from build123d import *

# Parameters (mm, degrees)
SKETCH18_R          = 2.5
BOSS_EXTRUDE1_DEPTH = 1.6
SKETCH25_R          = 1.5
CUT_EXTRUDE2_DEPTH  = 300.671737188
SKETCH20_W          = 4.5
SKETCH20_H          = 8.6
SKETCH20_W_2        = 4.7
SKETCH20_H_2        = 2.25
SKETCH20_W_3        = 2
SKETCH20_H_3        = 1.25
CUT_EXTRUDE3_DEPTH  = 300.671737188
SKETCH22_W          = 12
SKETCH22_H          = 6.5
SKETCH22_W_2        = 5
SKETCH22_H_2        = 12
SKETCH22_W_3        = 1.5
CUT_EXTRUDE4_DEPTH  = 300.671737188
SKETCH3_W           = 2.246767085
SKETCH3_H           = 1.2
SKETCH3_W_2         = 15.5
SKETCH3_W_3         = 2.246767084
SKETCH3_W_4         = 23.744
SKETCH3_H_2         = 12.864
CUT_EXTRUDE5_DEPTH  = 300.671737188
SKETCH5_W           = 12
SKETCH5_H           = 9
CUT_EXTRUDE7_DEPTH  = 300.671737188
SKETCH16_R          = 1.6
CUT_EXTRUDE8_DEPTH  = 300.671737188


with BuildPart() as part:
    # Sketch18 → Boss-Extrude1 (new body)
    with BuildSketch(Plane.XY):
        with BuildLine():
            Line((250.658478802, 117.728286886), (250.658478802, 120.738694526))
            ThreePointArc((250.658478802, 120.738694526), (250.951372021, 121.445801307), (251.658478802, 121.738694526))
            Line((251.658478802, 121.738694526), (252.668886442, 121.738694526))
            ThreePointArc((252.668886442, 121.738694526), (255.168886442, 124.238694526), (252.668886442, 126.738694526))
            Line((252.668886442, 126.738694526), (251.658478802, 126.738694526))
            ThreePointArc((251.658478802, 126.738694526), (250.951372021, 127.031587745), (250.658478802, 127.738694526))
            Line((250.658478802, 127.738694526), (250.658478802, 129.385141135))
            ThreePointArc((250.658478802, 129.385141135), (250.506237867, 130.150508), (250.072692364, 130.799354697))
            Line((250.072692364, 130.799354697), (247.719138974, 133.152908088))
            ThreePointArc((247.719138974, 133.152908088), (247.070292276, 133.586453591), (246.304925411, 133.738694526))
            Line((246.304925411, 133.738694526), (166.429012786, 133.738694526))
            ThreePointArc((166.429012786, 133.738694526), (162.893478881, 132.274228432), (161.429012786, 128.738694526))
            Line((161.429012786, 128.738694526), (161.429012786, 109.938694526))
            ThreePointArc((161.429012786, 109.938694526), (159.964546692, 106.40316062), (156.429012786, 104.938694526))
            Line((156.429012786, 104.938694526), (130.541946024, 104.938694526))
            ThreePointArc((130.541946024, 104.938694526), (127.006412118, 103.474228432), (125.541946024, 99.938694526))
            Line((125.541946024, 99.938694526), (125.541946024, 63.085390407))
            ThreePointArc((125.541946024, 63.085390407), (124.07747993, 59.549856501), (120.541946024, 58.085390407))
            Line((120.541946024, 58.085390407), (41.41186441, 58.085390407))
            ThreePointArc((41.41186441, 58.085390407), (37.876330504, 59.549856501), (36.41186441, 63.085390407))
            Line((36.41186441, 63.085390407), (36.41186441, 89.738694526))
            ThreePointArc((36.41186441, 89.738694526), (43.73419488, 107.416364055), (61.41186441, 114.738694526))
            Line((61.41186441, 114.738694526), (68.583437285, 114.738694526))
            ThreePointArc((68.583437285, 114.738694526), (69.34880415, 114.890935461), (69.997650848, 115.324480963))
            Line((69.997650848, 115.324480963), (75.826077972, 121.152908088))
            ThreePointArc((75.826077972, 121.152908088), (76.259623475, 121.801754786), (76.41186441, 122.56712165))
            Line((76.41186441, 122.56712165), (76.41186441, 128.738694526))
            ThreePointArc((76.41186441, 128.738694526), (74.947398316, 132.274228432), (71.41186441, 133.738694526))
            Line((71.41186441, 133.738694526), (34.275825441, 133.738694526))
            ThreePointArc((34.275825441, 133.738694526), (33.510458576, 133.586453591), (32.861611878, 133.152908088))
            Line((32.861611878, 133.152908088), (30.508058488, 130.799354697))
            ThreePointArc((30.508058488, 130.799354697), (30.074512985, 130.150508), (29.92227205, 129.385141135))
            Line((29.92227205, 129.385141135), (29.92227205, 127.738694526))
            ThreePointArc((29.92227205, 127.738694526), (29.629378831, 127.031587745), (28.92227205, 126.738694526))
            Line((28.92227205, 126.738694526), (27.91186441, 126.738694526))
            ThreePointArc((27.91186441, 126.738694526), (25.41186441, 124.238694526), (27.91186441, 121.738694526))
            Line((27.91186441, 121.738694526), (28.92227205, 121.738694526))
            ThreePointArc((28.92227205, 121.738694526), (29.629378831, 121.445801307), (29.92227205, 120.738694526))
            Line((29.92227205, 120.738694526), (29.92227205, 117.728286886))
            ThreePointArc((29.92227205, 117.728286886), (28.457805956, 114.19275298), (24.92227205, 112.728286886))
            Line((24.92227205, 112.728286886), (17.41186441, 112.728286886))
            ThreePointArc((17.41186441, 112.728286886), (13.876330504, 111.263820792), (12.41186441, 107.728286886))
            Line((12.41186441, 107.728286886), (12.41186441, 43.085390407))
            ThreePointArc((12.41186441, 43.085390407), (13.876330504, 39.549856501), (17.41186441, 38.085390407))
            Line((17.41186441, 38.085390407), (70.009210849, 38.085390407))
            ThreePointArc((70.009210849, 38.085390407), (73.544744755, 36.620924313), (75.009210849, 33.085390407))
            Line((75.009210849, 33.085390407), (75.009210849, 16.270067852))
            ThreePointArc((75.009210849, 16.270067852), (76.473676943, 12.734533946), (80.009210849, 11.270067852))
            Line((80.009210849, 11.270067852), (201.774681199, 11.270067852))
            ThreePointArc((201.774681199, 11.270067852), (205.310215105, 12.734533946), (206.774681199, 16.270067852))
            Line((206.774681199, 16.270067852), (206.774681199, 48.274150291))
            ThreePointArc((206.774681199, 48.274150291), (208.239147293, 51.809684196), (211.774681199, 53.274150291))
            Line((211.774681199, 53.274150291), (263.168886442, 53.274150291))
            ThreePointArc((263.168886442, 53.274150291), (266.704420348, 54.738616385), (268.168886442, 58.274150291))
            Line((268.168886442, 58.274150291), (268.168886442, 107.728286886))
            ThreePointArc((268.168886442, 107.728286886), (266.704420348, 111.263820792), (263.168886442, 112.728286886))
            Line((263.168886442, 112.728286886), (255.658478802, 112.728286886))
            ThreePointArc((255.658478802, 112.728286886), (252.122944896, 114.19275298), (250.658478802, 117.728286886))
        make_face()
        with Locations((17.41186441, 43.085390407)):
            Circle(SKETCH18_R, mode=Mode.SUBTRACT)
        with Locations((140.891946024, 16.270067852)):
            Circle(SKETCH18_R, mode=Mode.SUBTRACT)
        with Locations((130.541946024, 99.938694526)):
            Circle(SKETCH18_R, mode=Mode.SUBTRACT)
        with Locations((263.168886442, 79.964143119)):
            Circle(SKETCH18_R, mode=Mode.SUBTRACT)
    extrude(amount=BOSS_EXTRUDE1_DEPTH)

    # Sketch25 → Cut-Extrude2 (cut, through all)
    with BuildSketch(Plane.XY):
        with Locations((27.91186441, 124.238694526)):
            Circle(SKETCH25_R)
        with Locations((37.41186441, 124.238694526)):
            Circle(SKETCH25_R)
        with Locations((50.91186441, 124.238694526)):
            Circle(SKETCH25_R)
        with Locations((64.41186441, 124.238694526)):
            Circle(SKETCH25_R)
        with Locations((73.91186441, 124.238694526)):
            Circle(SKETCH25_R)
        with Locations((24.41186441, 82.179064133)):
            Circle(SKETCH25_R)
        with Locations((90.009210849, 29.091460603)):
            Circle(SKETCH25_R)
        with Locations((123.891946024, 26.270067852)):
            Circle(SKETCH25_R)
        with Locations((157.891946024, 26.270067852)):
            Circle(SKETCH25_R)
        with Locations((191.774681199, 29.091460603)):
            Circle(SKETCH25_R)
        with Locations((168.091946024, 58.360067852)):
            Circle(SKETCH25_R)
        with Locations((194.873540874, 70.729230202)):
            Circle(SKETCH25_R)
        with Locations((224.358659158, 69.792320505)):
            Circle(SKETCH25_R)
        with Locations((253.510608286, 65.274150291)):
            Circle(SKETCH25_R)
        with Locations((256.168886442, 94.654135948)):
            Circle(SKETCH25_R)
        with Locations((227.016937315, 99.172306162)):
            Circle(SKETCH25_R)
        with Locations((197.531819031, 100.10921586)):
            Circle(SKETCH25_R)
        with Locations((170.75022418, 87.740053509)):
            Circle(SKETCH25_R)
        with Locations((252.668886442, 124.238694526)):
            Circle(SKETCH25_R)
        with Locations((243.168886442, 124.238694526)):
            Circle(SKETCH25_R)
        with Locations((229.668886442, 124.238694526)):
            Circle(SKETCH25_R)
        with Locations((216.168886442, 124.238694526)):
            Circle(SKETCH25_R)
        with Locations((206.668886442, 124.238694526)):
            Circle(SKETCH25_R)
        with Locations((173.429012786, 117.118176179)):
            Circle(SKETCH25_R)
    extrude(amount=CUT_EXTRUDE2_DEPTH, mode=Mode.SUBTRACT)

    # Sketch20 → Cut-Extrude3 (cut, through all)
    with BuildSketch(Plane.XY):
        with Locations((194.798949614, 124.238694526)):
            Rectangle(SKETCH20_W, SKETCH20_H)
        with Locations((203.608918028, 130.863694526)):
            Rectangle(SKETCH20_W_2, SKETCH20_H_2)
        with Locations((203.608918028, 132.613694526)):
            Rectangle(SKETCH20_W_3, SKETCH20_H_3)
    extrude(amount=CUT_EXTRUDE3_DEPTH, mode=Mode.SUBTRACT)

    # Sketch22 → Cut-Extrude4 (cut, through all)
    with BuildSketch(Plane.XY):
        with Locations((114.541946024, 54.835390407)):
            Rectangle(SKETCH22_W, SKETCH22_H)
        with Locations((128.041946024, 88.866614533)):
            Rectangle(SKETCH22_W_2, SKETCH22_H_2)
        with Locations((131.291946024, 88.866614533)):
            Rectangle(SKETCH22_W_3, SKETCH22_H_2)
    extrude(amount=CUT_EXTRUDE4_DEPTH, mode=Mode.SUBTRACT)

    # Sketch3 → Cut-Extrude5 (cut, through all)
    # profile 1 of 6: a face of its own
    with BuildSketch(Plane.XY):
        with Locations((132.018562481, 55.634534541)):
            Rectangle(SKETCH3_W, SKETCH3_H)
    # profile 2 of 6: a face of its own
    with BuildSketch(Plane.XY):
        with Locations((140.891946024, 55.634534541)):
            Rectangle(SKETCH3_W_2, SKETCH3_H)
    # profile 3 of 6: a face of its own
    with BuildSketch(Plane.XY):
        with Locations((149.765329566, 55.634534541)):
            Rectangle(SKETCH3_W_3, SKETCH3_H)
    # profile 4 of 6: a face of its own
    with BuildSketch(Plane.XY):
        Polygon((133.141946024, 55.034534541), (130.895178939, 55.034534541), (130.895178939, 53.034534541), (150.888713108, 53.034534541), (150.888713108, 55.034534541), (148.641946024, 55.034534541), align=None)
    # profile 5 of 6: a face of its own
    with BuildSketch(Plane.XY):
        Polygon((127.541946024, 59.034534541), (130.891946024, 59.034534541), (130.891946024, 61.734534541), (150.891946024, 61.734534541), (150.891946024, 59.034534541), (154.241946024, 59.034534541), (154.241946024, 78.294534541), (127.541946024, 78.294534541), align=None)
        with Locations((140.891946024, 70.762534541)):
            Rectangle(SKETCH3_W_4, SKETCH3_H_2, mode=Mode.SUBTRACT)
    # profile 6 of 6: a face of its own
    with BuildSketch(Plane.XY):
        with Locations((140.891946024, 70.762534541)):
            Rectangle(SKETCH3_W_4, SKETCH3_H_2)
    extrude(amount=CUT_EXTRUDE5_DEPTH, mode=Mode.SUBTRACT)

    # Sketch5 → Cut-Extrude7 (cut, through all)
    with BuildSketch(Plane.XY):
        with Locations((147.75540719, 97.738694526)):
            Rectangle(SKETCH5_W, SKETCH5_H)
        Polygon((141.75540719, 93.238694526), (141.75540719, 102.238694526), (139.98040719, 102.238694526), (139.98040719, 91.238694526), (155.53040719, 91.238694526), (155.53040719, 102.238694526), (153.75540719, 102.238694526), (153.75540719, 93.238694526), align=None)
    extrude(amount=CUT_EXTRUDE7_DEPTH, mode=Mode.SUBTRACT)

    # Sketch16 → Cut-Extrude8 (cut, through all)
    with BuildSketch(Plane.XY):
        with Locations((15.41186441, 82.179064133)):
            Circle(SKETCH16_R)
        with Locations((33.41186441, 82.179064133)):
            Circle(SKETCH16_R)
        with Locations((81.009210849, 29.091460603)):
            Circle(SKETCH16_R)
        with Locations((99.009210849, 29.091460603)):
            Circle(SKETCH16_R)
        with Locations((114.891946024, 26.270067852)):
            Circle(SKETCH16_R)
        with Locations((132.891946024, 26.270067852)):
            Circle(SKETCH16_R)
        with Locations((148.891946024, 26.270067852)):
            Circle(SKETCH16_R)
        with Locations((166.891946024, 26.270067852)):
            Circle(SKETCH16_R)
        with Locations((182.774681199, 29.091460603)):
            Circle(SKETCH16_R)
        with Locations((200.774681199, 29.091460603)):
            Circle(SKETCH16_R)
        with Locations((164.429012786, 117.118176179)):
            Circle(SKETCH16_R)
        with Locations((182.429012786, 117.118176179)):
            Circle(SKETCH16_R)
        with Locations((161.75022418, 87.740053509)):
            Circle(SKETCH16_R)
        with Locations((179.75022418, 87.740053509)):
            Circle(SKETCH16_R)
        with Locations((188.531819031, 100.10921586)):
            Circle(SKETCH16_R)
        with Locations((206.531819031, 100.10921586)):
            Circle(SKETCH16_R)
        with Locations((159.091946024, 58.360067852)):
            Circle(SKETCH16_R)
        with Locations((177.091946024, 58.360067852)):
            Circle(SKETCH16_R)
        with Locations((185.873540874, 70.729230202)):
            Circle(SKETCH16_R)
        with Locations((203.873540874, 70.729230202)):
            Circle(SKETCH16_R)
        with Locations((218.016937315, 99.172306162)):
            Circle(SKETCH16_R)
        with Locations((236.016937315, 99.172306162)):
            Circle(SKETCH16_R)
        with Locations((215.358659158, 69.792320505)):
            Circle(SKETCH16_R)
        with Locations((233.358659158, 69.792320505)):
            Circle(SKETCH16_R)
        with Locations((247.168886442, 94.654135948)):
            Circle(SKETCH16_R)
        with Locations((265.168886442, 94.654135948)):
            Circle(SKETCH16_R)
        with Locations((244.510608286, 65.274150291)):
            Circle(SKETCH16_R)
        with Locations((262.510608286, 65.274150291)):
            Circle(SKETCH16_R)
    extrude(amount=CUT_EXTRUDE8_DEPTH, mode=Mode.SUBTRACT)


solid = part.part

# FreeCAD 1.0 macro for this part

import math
import FreeCAD as App
import Part
import Sketcher
Q = App.Units.Quantity


def add_polygon(sketch, points):
    """Adds a closed chain of lines whose ends are joined by coincident constraints."""
    first, n = sketch.GeometryCount, len(points)
    for a, b in zip(points, points[1:] + points[:1]):
        sketch.addGeometry(Part.LineSegment(App.Vector(*a, 0), App.Vector(*b, 0)), False)
    for i in range(n):
        sketch.addConstraint(Sketcher.Constraint("Coincident", first + i, 2, first + (i + 1) % n, 1))

doc = App.newDocument("Part")
params = doc.addObject("Spreadsheet::Sheet", "Params")
for row, (alias, value) in enumerate([
    ("sketch1_diameter", "5 mm"),
    ("sketch1_radius", "1 mm"),
    ("sketch1_radius2", "2 mm"),
    ("sketch1_radius3", "5 mm"),
    ("sketch1_radius4", "25 mm"),
    ("pad1_length", "1.6 mm"),
    ("sketch2_diameter", "3 mm"),
    ("sketch3_width", "2 mm"),
    ("sketch3_width2", "4.5 mm"),
    ("sketch3_width3", "4.7 mm"),
    ("sketch3_height", "8.6 mm"),
    ("sketch3_height2", "2.25 mm"),
    ("sketch4_width", "12 mm"),
    ("sketch4_width2", "6.5 mm"),
    ("sketch5_width", "20 mm"),
    ("sketch5_width2", "26.7 mm"),
    ("sketch5_height", "3.2 mm"),
    ("sketch5_height2", "2.7 mm"),
    ("sketch5_height3", "19.26 mm"),
    ("pocket4_length", "300.671737 mm"),
    ("sketch6_height", "11 mm"),
    ("sketch6_width", "15.55 mm"),
    ("sketch7_diameter", "3.2 mm"),
], start=1):
    params.set(f"A{row}", alias)
    params.set(f"B{row}", "=" + value)
    params.setAlias(f"B{row}", alias)

body = doc.addObject("PartDesign::Body", "Body")

# Sketch on XY plane
sketch1 = body.newObject("Sketcher::SketchObject", "Sketch")
sketch1.AttachmentSupport = (doc.getObject("XY_Plane"), [""])
sketch1.MapMode = "FlatFace"
sketch1.addGeometry([
    Part.LineSegment(App.Vector(250.658479, 117.728287, 0), App.Vector(250.658479, 120.738695, 0)),  # 0
    Part.ArcOfCircle(Part.Circle(App.Vector(251.658479, 120.738695, 0), App.Vector(0, 0, 1), 1), math.radians(90), math.radians(180)),  # 1
    Part.LineSegment(App.Vector(251.658479, 121.738695, 0), App.Vector(252.668886, 121.738695, 0)),  # 2
    Part.ArcOfCircle(Part.Circle(App.Vector(252.668886, 124.238695, 0), App.Vector(0, 0, 1), 2.5), math.radians(-90), math.radians(90)),  # 3
    Part.LineSegment(App.Vector(252.668886, 126.738695, 0), App.Vector(251.658479, 126.738695, 0)),  # 4
    Part.ArcOfCircle(Part.Circle(App.Vector(251.658479, 127.738695, 0), App.Vector(0, 0, 1), 1), math.radians(-180), math.radians(-90)),  # 5
    Part.LineSegment(App.Vector(250.658479, 127.738695, 0), App.Vector(250.658479, 129.385141, 0)),  # 6
    Part.ArcOfCircle(Part.Circle(App.Vector(248.658479, 129.385141, 0), App.Vector(0, 0, 1), 2), math.radians(0), math.radians(45)),  # 7
    Part.LineSegment(App.Vector(250.072692, 130.799355, 0), App.Vector(247.719139, 133.152908, 0)),  # 8
    Part.ArcOfCircle(Part.Circle(App.Vector(246.304925, 131.738695, 0), App.Vector(0, 0, 1), 2), math.radians(45), math.radians(90)),  # 9
    Part.LineSegment(App.Vector(246.304925, 133.738695, 0), App.Vector(166.429013, 133.738695, 0)),  # 10
    Part.ArcOfCircle(Part.Circle(App.Vector(166.429013, 128.738695, 0), App.Vector(0, 0, 1), 5), math.radians(90), math.radians(180)),  # 11
    Part.LineSegment(App.Vector(161.429013, 128.738695, 0), App.Vector(161.429013, 109.938695, 0)),  # 12
    Part.ArcOfCircle(Part.Circle(App.Vector(156.429013, 109.938695, 0), App.Vector(0, 0, 1), 5), math.radians(-90), math.radians(0)),  # 13
    Part.LineSegment(App.Vector(156.429013, 104.938695, 0), App.Vector(130.541946, 104.938695, 0)),  # 14
    Part.ArcOfCircle(Part.Circle(App.Vector(130.541946, 99.938695, 0), App.Vector(0, 0, 1), 5), math.radians(90), math.radians(180)),  # 15
    Part.LineSegment(App.Vector(125.541946, 99.938695, 0), App.Vector(125.541946, 63.08539, 0)),  # 16
    Part.ArcOfCircle(Part.Circle(App.Vector(120.541946, 63.08539, 0), App.Vector(0, 0, 1), 5), math.radians(-90), math.radians(0)),  # 17
    Part.LineSegment(App.Vector(120.541946, 58.08539, 0), App.Vector(41.411864, 58.08539, 0)),  # 18
    Part.ArcOfCircle(Part.Circle(App.Vector(41.411864, 63.08539, 0), App.Vector(0, 0, 1), 5), math.radians(180), math.radians(270)),  # 19
    Part.LineSegment(App.Vector(36.411864, 63.08539, 0), App.Vector(36.411864, 89.738695, 0)),  # 20
    Part.ArcOfCircle(Part.Circle(App.Vector(61.411864, 89.738695, 0), App.Vector(0, 0, 1), 25), math.radians(90), math.radians(180)),  # 21
    Part.LineSegment(App.Vector(61.411864, 114.738695, 0), App.Vector(68.583437, 114.738695, 0)),  # 22
    Part.ArcOfCircle(Part.Circle(App.Vector(68.583437, 116.738695, 0), App.Vector(0, 0, 1), 2), math.radians(-90), math.radians(-45)),  # 23
    Part.LineSegment(App.Vector(69.997651, 115.324481, 0), App.Vector(75.826078, 121.152908, 0)),  # 24
    Part.ArcOfCircle(Part.Circle(App.Vector(74.411864, 122.567122, 0), App.Vector(0, 0, 1), 2), math.radians(-45), math.radians(0)),  # 25
    Part.LineSegment(App.Vector(76.411864, 122.567122, 0), App.Vector(76.411864, 128.738695, 0)),  # 26
    Part.ArcOfCircle(Part.Circle(App.Vector(71.411864, 128.738695, 0), App.Vector(0, 0, 1), 5), math.radians(0), math.radians(90)),  # 27
    Part.LineSegment(App.Vector(71.411864, 133.738695, 0), App.Vector(34.275825, 133.738695, 0)),  # 28
    Part.ArcOfCircle(Part.Circle(App.Vector(34.275825, 131.738695, 0), App.Vector(0, 0, 1), 2), math.radians(90), math.radians(135)),  # 29
    Part.LineSegment(App.Vector(32.861612, 133.152908, 0), App.Vector(30.508058, 130.799355, 0)),  # 30
    Part.ArcOfCircle(Part.Circle(App.Vector(31.922272, 129.385141, 0), App.Vector(0, 0, 1), 2), math.radians(135), math.radians(180)),  # 31
    Part.LineSegment(App.Vector(29.922272, 129.385141, 0), App.Vector(29.922272, 127.738695, 0)),  # 32
    Part.ArcOfCircle(Part.Circle(App.Vector(28.922272, 127.738695, 0), App.Vector(0, 0, 1), 1), math.radians(-90), math.radians(0)),  # 33
    Part.LineSegment(App.Vector(28.922272, 126.738695, 0), App.Vector(27.911864, 126.738695, 0)),  # 34
    Part.ArcOfCircle(Part.Circle(App.Vector(27.911864, 124.238695, 0), App.Vector(0, 0, 1), 2.5), math.radians(90), math.radians(270)),  # 35
    Part.LineSegment(App.Vector(27.911864, 121.738695, 0), App.Vector(28.922272, 121.738695, 0)),  # 36
    Part.ArcOfCircle(Part.Circle(App.Vector(28.922272, 120.738695, 0), App.Vector(0, 0, 1), 1), math.radians(0), math.radians(90)),  # 37
    Part.LineSegment(App.Vector(29.922272, 120.738695, 0), App.Vector(29.922272, 117.728287, 0)),  # 38
    Part.ArcOfCircle(Part.Circle(App.Vector(24.922272, 117.728287, 0), App.Vector(0, 0, 1), 5), math.radians(-90), math.radians(0)),  # 39
    Part.LineSegment(App.Vector(24.922272, 112.728287, 0), App.Vector(17.411864, 112.728287, 0)),  # 40
    Part.ArcOfCircle(Part.Circle(App.Vector(17.411864, 107.728287, 0), App.Vector(0, 0, 1), 5), math.radians(90), math.radians(180)),  # 41
    Part.LineSegment(App.Vector(12.411864, 107.728287, 0), App.Vector(12.411864, 43.08539, 0)),  # 42
    Part.ArcOfCircle(Part.Circle(App.Vector(17.411864, 43.08539, 0), App.Vector(0, 0, 1), 5), math.radians(180), math.radians(270)),  # 43
    Part.LineSegment(App.Vector(17.411864, 38.08539, 0), App.Vector(70.009211, 38.08539, 0)),  # 44
    Part.ArcOfCircle(Part.Circle(App.Vector(70.009211, 33.08539, 0), App.Vector(0, 0, 1), 5), math.radians(0), math.radians(90)),  # 45
    Part.LineSegment(App.Vector(75.009211, 33.08539, 0), App.Vector(75.009211, 16.270068, 0)),  # 46
    Part.ArcOfCircle(Part.Circle(App.Vector(80.009211, 16.270068, 0), App.Vector(0, 0, 1), 5), math.radians(180), math.radians(270)),  # 47
    Part.LineSegment(App.Vector(80.009211, 11.270068, 0), App.Vector(201.774681, 11.270068, 0)),  # 48
    Part.ArcOfCircle(Part.Circle(App.Vector(201.774681, 16.270068, 0), App.Vector(0, 0, 1), 5), math.radians(-90), math.radians(0)),  # 49
    Part.LineSegment(App.Vector(206.774681, 16.270068, 0), App.Vector(206.774681, 48.27415, 0)),  # 50
    Part.ArcOfCircle(Part.Circle(App.Vector(211.774681, 48.27415, 0), App.Vector(0, 0, 1), 5), math.radians(90), math.radians(180)),  # 51
    Part.LineSegment(App.Vector(211.774681, 53.27415, 0), App.Vector(263.168886, 53.27415, 0)),  # 52
    Part.ArcOfCircle(Part.Circle(App.Vector(263.168886, 58.27415, 0), App.Vector(0, 0, 1), 5), math.radians(-90), math.radians(0)),  # 53
    Part.LineSegment(App.Vector(268.168886, 58.27415, 0), App.Vector(268.168886, 107.728287, 0)),  # 54
    Part.ArcOfCircle(Part.Circle(App.Vector(263.168886, 107.728287, 0), App.Vector(0, 0, 1), 5), math.radians(0), math.radians(90)),  # 55
    Part.LineSegment(App.Vector(263.168886, 112.728287, 0), App.Vector(255.658479, 112.728287, 0)),  # 56
    Part.ArcOfCircle(Part.Circle(App.Vector(255.658479, 117.728287, 0), App.Vector(0, 0, 1), 5), math.radians(180), math.radians(270)),  # 57
    Part.Circle(App.Vector(17.411864, 43.08539, 0), App.Vector(0, 0, 1), 2.5),  # 58
    Part.Circle(App.Vector(140.891946, 16.270068, 0), App.Vector(0, 0, 1), 2.5),  # 59
    Part.Circle(App.Vector(130.541946, 99.938695, 0), App.Vector(0, 0, 1), 2.5),  # 60
    Part.Circle(App.Vector(263.168886, 79.964143, 0), App.Vector(0, 0, 1), 2.5),  # 61
], False)
sketch1.addConstraint([
    Sketcher.Constraint("Tangent", 0, 2, 1, 2),
    Sketcher.Constraint("Tangent", 1, 1, 2, 1),
    Sketcher.Constraint("Tangent", 2, 2, 3, 1),
    Sketcher.Constraint("Tangent", 3, 2, 4, 1),
    Sketcher.Constraint("Tangent", 4, 2, 5, 2),
    Sketcher.Constraint("Tangent", 5, 1, 6, 1),
    Sketcher.Constraint("Tangent", 6, 2, 7, 1),
    Sketcher.Constraint("Tangent", 7, 2, 8, 1),
    Sketcher.Constraint("Tangent", 8, 2, 9, 1),
    Sketcher.Constraint("Tangent", 9, 2, 10, 1),
    Sketcher.Constraint("Tangent", 10, 2, 11, 1),
    Sketcher.Constraint("Tangent", 11, 2, 12, 1),
    Sketcher.Constraint("Tangent", 12, 2, 13, 2),
    Sketcher.Constraint("Tangent", 13, 1, 14, 1),
    Sketcher.Constraint("Tangent", 14, 2, 15, 1),
    Sketcher.Constraint("Tangent", 15, 2, 16, 1),
    Sketcher.Constraint("Tangent", 16, 2, 17, 2),
    Sketcher.Constraint("Tangent", 17, 1, 18, 1),
    Sketcher.Constraint("Tangent", 18, 2, 19, 2),
    Sketcher.Constraint("Tangent", 19, 1, 20, 1),
    Sketcher.Constraint("Tangent", 20, 2, 21, 2),
    Sketcher.Constraint("Tangent", 21, 1, 22, 1),
    Sketcher.Constraint("Tangent", 22, 2, 23, 1),
    Sketcher.Constraint("Tangent", 23, 2, 24, 1),
    Sketcher.Constraint("Tangent", 24, 2, 25, 1),
    Sketcher.Constraint("Tangent", 25, 2, 26, 1),
    Sketcher.Constraint("Tangent", 26, 2, 27, 1),
    Sketcher.Constraint("Tangent", 27, 2, 28, 1),
    Sketcher.Constraint("Tangent", 28, 2, 29, 1),
    Sketcher.Constraint("Tangent", 29, 2, 30, 1),
    Sketcher.Constraint("Tangent", 30, 2, 31, 1),
    Sketcher.Constraint("Tangent", 31, 2, 32, 1),
    Sketcher.Constraint("Tangent", 32, 2, 33, 2),
    Sketcher.Constraint("Tangent", 33, 1, 34, 1),
    Sketcher.Constraint("Tangent", 34, 2, 35, 1),
    Sketcher.Constraint("Tangent", 35, 2, 36, 1),
    Sketcher.Constraint("Tangent", 36, 2, 37, 2),
    Sketcher.Constraint("Tangent", 37, 1, 38, 1),
    Sketcher.Constraint("Tangent", 38, 2, 39, 2),
    Sketcher.Constraint("Tangent", 39, 1, 40, 1),
    Sketcher.Constraint("Tangent", 40, 2, 41, 1),
    Sketcher.Constraint("Tangent", 41, 2, 42, 1),
    Sketcher.Constraint("Tangent", 42, 2, 43, 1),
    Sketcher.Constraint("Tangent", 43, 2, 44, 1),
    Sketcher.Constraint("Tangent", 44, 2, 45, 2),
    Sketcher.Constraint("Tangent", 45, 1, 46, 1),
    Sketcher.Constraint("Tangent", 46, 2, 47, 1),
    Sketcher.Constraint("Tangent", 47, 2, 48, 1),
    Sketcher.Constraint("Tangent", 48, 2, 49, 1),
    Sketcher.Constraint("Tangent", 49, 2, 50, 1),
    Sketcher.Constraint("Tangent", 50, 2, 51, 2),
    Sketcher.Constraint("Tangent", 51, 1, 52, 1),
    Sketcher.Constraint("Tangent", 52, 2, 53, 1),
    Sketcher.Constraint("Tangent", 53, 2, 54, 1),
    Sketcher.Constraint("Tangent", 54, 2, 55, 1),
    Sketcher.Constraint("Tangent", 55, 2, 56, 1),
    Sketcher.Constraint("Tangent", 56, 2, 57, 2),
    Sketcher.Constraint("Tangent", 57, 1, 0, 1),
    Sketcher.Constraint("Vertical", 0),
    Sketcher.Constraint("Horizontal", 2),
    Sketcher.Constraint("Horizontal", 4),
    Sketcher.Constraint("Vertical", 6),
    Sketcher.Constraint("Horizontal", 10),
    Sketcher.Constraint("Vertical", 12),
    Sketcher.Constraint("Horizontal", 14),
    Sketcher.Constraint("Vertical", 16),
    Sketcher.Constraint("Horizontal", 18),
    Sketcher.Constraint("Vertical", 20),
    Sketcher.Constraint("Horizontal", 22),
    Sketcher.Constraint("Vertical", 26),
    Sketcher.Constraint("Horizontal", 28),
    Sketcher.Constraint("Vertical", 32),
    Sketcher.Constraint("Horizontal", 34),
    Sketcher.Constraint("Horizontal", 36),
    Sketcher.Constraint("Vertical", 38),
    Sketcher.Constraint("Horizontal", 40),
    Sketcher.Constraint("Vertical", 42),
    Sketcher.Constraint("Horizontal", 44),
    Sketcher.Constraint("Vertical", 46),
    Sketcher.Constraint("Horizontal", 48),
    Sketcher.Constraint("Vertical", 50),
    Sketcher.Constraint("Horizontal", 52),
    Sketcher.Constraint("Vertical", 54),
    Sketcher.Constraint("Horizontal", 56),
    Sketcher.Constraint("Coincident", 58, 3, 43, 3),
    Sketcher.Constraint("Coincident", 60, 3, 15, 3),
    Sketcher.Constraint("Equal", 1, 5),
    Sketcher.Constraint("Equal", 7, 9),
    Sketcher.Constraint("Equal", 11, 13),
    Sketcher.Constraint("Equal", 13, 15),
    Sketcher.Constraint("Equal", 15, 17),
    Sketcher.Constraint("Equal", 17, 19),
    Sketcher.Constraint("Equal", 9, 23),
    Sketcher.Constraint("Equal", 23, 25),
    Sketcher.Constraint("Equal", 19, 27),
    Sketcher.Constraint("Equal", 25, 29),
    Sketcher.Constraint("Equal", 29, 31),
    Sketcher.Constraint("Equal", 5, 33),
    Sketcher.Constraint("Equal", 3, 35),
    Sketcher.Constraint("Equal", 33, 37),
    Sketcher.Constraint("Equal", 27, 39),
    Sketcher.Constraint("Equal", 39, 41),
    Sketcher.Constraint("Equal", 41, 43),
    Sketcher.Constraint("Equal", 43, 45),
    Sketcher.Constraint("Equal", 45, 47),
    Sketcher.Constraint("Equal", 47, 49),
    Sketcher.Constraint("Equal", 49, 51),
    Sketcher.Constraint("Equal", 51, 53),
    Sketcher.Constraint("Equal", 53, 55),
    Sketcher.Constraint("Equal", 55, 57),
    Sketcher.Constraint("Equal", 35, 58),
    Sketcher.Constraint("Equal", 58, 59),
    Sketcher.Constraint("Equal", 59, 60),
    Sketcher.Constraint("Equal", 60, 61),
    Sketcher.Constraint("Perpendicular", 8, 24),
    Sketcher.Constraint("Parallel", 24, 30),
    Sketcher.Constraint("Horizontal", 11, 3, 27, 3),
    Sketcher.Constraint("Horizontal", 7, 3, 31, 3),
    Sketcher.Constraint("Horizontal", 5, 3, 33, 3),
    Sketcher.Constraint("Horizontal", 41, 3, 55, 3),
    Sketcher.Constraint("Horizontal", 49, 3, 59, 3),
    Sketcher.Constraint("Horizontal", 8, 2, 29, 2),
    Sketcher.Constraint("Vertical", 1, 3, 5, 3),
    Sketcher.Constraint("Vertical", 33, 3, 37, 3),
    Sketcher.Constraint("Vertical", 55, 3, 61, 3),
    Sketcher.Constraint("Equal", 4, 34),
    Sketcher.Constraint("Equal", 40, 56),
    Sketcher.Constraint("Diameter", 58, Q("5 mm")),
    Sketcher.Constraint("Radius", 1, Q("1 mm")),
    Sketcher.Constraint("Radius", 7, Q("2 mm")),
    Sketcher.Constraint("Radius", 11, Q("5 mm")),
    Sketcher.Constraint("Radius", 21, Q("25 mm")),
    Sketcher.Constraint("DistanceY", 12, 2, 12, 1, Q("18.8 mm")),
    Sketcher.Constraint("DistanceX", 18, 2, 18, 1, Q("79.130082 mm")),
    Sketcher.Constraint("DistanceX", 28, 2, 28, 1, Q("37.136039 mm")),
    Sketcher.Constraint("DistanceX", 48, 1, 48, 2, Q("121.76547 mm")),
    Sketcher.Constraint("Distance", 24, Q("8.242641 mm")),
    Sketcher.Constraint("DistanceX", 2, 1, 2, 2, Q("1.010408 mm")),
    Sketcher.Constraint("DistanceX", 10, 2, 10, 1, Q("79.875913 mm")),
    Sketcher.Constraint("DistanceX", 14, 2, 14, 1, Q("25.887067 mm")),
    Sketcher.Constraint("DistanceX", 22, 1, 22, 2, Q("7.171573 mm")),
    Sketcher.Constraint("DistanceX", 40, 2, 40, 1, Q("7.510408 mm")),
    Sketcher.Constraint("DistanceX", 44, 1, 44, 2, Q("52.597346 mm")),
    Sketcher.Constraint("DistanceX", 52, 1, 52, 2, Q("51.394205 mm")),
    Sketcher.Constraint("DistanceY", 0, 1, 0, 2, Q("3.010408 mm")),
    Sketcher.Constraint("DistanceY", 6, 1, 6, 2, Q("1.646447 mm")),
    Sketcher.Constraint("DistanceY", 16, 2, 16, 1, Q("36.853304 mm")),
    Sketcher.Constraint("DistanceY", 20, 1, 20, 2, Q("26.653304 mm")),
    Sketcher.Constraint("DistanceY", 42, 2, 42, 1, Q("64.642896 mm")),
    Sketcher.Constraint("DistanceY", 46, 2, 46, 1, Q("16.815323 mm")),
    Sketcher.Constraint("DistanceY", 50, 1, 50, 2, Q("32.004082 mm")),
    Sketcher.Constraint("DistanceX", -1, 1, 1, 3, Q("251.658479 mm")),
    Sketcher.Constraint("DistanceY", -1, 1, 7, 3, Q("129.385141 mm")),
    Sketcher.Constraint("DistanceX", -1, 1, 59, 3, Q("140.891946 mm")),
    Sketcher.Constraint("DistanceY", -1, 1, 61, 3, Q("79.964143 mm")),
])
sketch1.setExpression("Constraints[127]", "Params.sketch1_diameter")
sketch1.setExpression("Constraints[128]", "Params.sketch1_radius")
sketch1.setExpression("Constraints[129]", "Params.sketch1_radius2")
sketch1.setExpression("Constraints[130]", "Params.sketch1_radius3")
sketch1.setExpression("Constraints[131]", "Params.sketch1_radius4")
pad1 = body.newObject("PartDesign::Pad", "Pad")
pad1.Profile = sketch1
pad1.setExpression("Length", "Params.pad1_length")

# Sketch on XY plane
sketch2 = body.newObject("Sketcher::SketchObject", "Sketch001")
sketch2.AttachmentSupport = (doc.getObject("XY_Plane"), [""])
sketch2.MapMode = "FlatFace"
sketch2.addGeometry([
    Part.Circle(App.Vector(27.911864, 124.238695, 0), App.Vector(0, 0, 1), 1.5),  # 0
    Part.Circle(App.Vector(37.411864, 124.238695, 0), App.Vector(0, 0, 1), 1.5),  # 1
    Part.Circle(App.Vector(50.911864, 124.238695, 0), App.Vector(0, 0, 1), 1.5),  # 2
    Part.Circle(App.Vector(64.411864, 124.238695, 0), App.Vector(0, 0, 1), 1.5),  # 3
    Part.Circle(App.Vector(73.911864, 124.238695, 0), App.Vector(0, 0, 1), 1.5),  # 4
    Part.Circle(App.Vector(24.411864, 82.179064, 0), App.Vector(0, 0, 1), 1.5),  # 5
    Part.Circle(App.Vector(90.009211, 29.091461, 0), App.Vector(0, 0, 1), 1.5),  # 6
    Part.Circle(App.Vector(123.891946, 26.270068, 0), App.Vector(0, 0, 1), 1.5),  # 7
    Part.Circle(App.Vector(157.891946, 26.270068, 0), App.Vector(0, 0, 1), 1.5),  # 8
    Part.Circle(App.Vector(191.774681, 29.091461, 0), App.Vector(0, 0, 1), 1.5),  # 9
    Part.Circle(App.Vector(168.091946, 58.360068, 0), App.Vector(0, 0, 1), 1.5),  # 10
    Part.Circle(App.Vector(194.873541, 70.72923, 0), App.Vector(0, 0, 1), 1.5),  # 11
    Part.Circle(App.Vector(224.358659, 69.792321, 0), App.Vector(0, 0, 1), 1.5),  # 12
    Part.Circle(App.Vector(253.510608, 65.27415, 0), App.Vector(0, 0, 1), 1.5),  # 13
    Part.Circle(App.Vector(256.168886, 94.654136, 0), App.Vector(0, 0, 1), 1.5),  # 14
    Part.Circle(App.Vector(227.016937, 99.172306, 0), App.Vector(0, 0, 1), 1.5),  # 15
    Part.Circle(App.Vector(197.531819, 100.109216, 0), App.Vector(0, 0, 1), 1.5),  # 16
    Part.Circle(App.Vector(170.750224, 87.740054, 0), App.Vector(0, 0, 1), 1.5),  # 17
    Part.Circle(App.Vector(252.668886, 124.238695, 0), App.Vector(0, 0, 1), 1.5),  # 18
    Part.Circle(App.Vector(243.168886, 124.238695, 0), App.Vector(0, 0, 1), 1.5),  # 19
    Part.Circle(App.Vector(229.668886, 124.238695, 0), App.Vector(0, 0, 1), 1.5),  # 20
    Part.Circle(App.Vector(216.168886, 124.238695, 0), App.Vector(0, 0, 1), 1.5),  # 21
    Part.Circle(App.Vector(206.668886, 124.238695, 0), App.Vector(0, 0, 1), 1.5),  # 22
    Part.Circle(App.Vector(173.429013, 117.118176, 0), App.Vector(0, 0, 1), 1.5),  # 23
], False)
sketch2.addConstraint([
    Sketcher.Constraint("Equal", 0, 1),
    Sketcher.Constraint("Equal", 1, 2),
    Sketcher.Constraint("Equal", 2, 3),
    Sketcher.Constraint("Equal", 3, 4),
    Sketcher.Constraint("Equal", 4, 5),
    Sketcher.Constraint("Equal", 5, 6),
    Sketcher.Constraint("Equal", 6, 7),
    Sketcher.Constraint("Equal", 7, 8),
    Sketcher.Constraint("Equal", 8, 9),
    Sketcher.Constraint("Equal", 9, 10),
    Sketcher.Constraint("Equal", 10, 11),
    Sketcher.Constraint("Equal", 11, 12),
    Sketcher.Constraint("Equal", 12, 13),
    Sketcher.Constraint("Equal", 13, 14),
    Sketcher.Constraint("Equal", 14, 15),
    Sketcher.Constraint("Equal", 15, 16),
    Sketcher.Constraint("Equal", 16, 17),
    Sketcher.Constraint("Equal", 17, 18),
    Sketcher.Constraint("Equal", 18, 19),
    Sketcher.Constraint("Equal", 19, 20),
    Sketcher.Constraint("Equal", 20, 21),
    Sketcher.Constraint("Equal", 21, 22),
    Sketcher.Constraint("Equal", 22, 23),
    Sketcher.Constraint("Horizontal", 0, 3, 1, 3),
    Sketcher.Constraint("Horizontal", 1, 3, 2, 3),
    Sketcher.Constraint("Horizontal", 2, 3, 3, 3),
    Sketcher.Constraint("Horizontal", 3, 3, 4, 3),
    Sketcher.Constraint("Horizontal", 7, 3, 8, 3),
    Sketcher.Constraint("Horizontal", 6, 3, 9, 3),
    Sketcher.Constraint("Horizontal", 4, 3, 18, 3),
    Sketcher.Constraint("Horizontal", 18, 3, 19, 3),
    Sketcher.Constraint("Horizontal", 19, 3, 20, 3),
    Sketcher.Constraint("Horizontal", 20, 3, 21, 3),
    Sketcher.Constraint("Horizontal", 21, 3, 22, 3),
    Sketcher.Constraint("Diameter", 0, Q("3 mm")),
    Sketcher.Constraint("DistanceX", 0, 3, 2, 3, Q("23 mm")),
    Sketcher.Constraint("DistanceX", 1, 3, 3, 3, Q("27 mm")),
    Sketcher.Constraint("DistanceX", 2, 3, 4, 3, Q("23 mm")),
    Sketcher.Constraint("DistanceX", 5, 3, 1, 3, Q("13 mm")),
    Sketcher.Constraint("DistanceX", 7, 3, 8, 3, Q("34 mm")),
    Sketcher.Constraint("DistanceX", 19, 3, 14, 3, Q("13 mm")),
    Sketcher.Constraint("DistanceX", 20, 3, 18, 3, Q("23 mm")),
    Sketcher.Constraint("DistanceX", 21, 3, 19, 3, Q("27 mm")),
    Sketcher.Constraint("DistanceX", 22, 3, 20, 3, Q("23 mm")),
    Sketcher.Constraint("DistanceX", 0, 3, 1, 3, Q("9.5 mm")),
    Sketcher.Constraint("DistanceX", 8, 3, 10, 3, Q("10.2 mm")),
    Sketcher.Constraint("DistanceX", 18, 3, 14, 3, Q("3.5 mm")),
    Sketcher.Constraint("DistanceY", 8, 3, 10, 3, Q("32.09 mm")),
    Sketcher.Constraint("DistanceX", -1, 1, 6, 3, Q("90.009211 mm")),
    Sketcher.Constraint("DistanceY", -1, 1, 6, 3, Q("29.091461 mm")),
    Sketcher.Constraint("DistanceX", -1, 1, 9, 3, Q("191.774681 mm")),
    Sketcher.Constraint("DistanceX", -1, 1, 11, 3, Q("194.873541 mm")),
    Sketcher.Constraint("DistanceY", -1, 1, 11, 3, Q("70.72923 mm")),
    Sketcher.Constraint("DistanceX", -1, 1, 12, 3, Q("224.358659 mm")),
    Sketcher.Constraint("DistanceY", -1, 1, 12, 3, Q("69.792321 mm")),
    Sketcher.Constraint("DistanceX", -1, 1, 13, 3, Q("253.510608 mm")),
    Sketcher.Constraint("DistanceY", -1, 1, 13, 3, Q("65.27415 mm")),
    Sketcher.Constraint("DistanceX", -1, 1, 16, 3, Q("197.531819 mm")),
    Sketcher.Constraint("DistanceY", 5, 3, 0, 3, Q("42.05963 mm")),
    Sketcher.Constraint("DistanceX", 4, 3, 7, 3, Q("49.980082 mm")),
    Sketcher.Constraint("DistanceX", 13, 3, 14, 3, Q("2.658278 mm")),
    Sketcher.Constraint("DistanceX", 10, 3, 14, 3, Q("88.07694 mm")),
    Sketcher.Constraint("DistanceY", 10, 3, 14, 3, Q("36.294068 mm")),
    Sketcher.Constraint("DistanceX", 12, 3, 15, 3, Q("2.658278 mm")),
    Sketcher.Constraint("DistanceY", 14, 3, 15, 3, Q("4.51817 mm")),
    Sketcher.Constraint("DistanceY", 15, 3, 16, 3, Q("0.93691 mm")),
    Sketcher.Constraint("DistanceX", 10, 3, 17, 3, Q("2.658278 mm")),
    Sketcher.Constraint("DistanceY", 14, 3, 18, 3, Q("29.584559 mm")),
    Sketcher.Constraint("DistanceX", 17, 3, 23, 3, Q("2.678789 mm")),
    Sketcher.Constraint("DistanceY", 16, 3, 23, 3, Q("17.00896 mm")),
    Sketcher.Constraint("DistanceY", -1, 1, 0, 3, Q("124.238695 mm")),
    Sketcher.Constraint("DistanceY", -1, 1, 17, 3, Q("87.740054 mm")),
])
sketch2.setExpression("Constraints[34]", "Params.sketch2_diameter")
pocket1 = body.newObject("PartDesign::Pocket", "Pocket")
pocket1.Profile = sketch2
pocket1.Type = "ThroughAll"
pocket1.Reversed = True

# Sketch on XY plane
sketch3 = body.newObject("Sketcher::SketchObject", "Sketch002")
sketch3.AttachmentSupport = (doc.getObject("XY_Plane"), [""])
sketch3.MapMode = "FlatFace"
add_polygon(sketch3, [(192.54895, 128.538695), (192.54895, 119.938695), (197.04895, 119.938695), (197.04895, 128.538695)])  # lines 0-3
add_polygon(sketch3, [(201.258918, 131.988695), (201.258918, 129.738695), (205.958918, 129.738695), (205.958918, 131.988695), (204.608918, 131.988695), (204.608918, 133.238695), (202.608918, 133.238695), (202.608918, 131.988695)])  # lines 4-11
sketch3.addConstraint([
    Sketcher.Constraint("Vertical", 0),
    Sketcher.Constraint("Horizontal", 1),
    Sketcher.Constraint("Vertical", 2),
    Sketcher.Constraint("Horizontal", 3),
    Sketcher.Constraint("Vertical", 4),
    Sketcher.Constraint("Horizontal", 5),
    Sketcher.Constraint("Vertical", 6),
    Sketcher.Constraint("Horizontal", 7),
    Sketcher.Constraint("Vertical", 8),
    Sketcher.Constraint("Horizontal", 9),
    Sketcher.Constraint("Vertical", 10),
    Sketcher.Constraint("Horizontal", 11),
    Sketcher.Constraint("Horizontal", 7, 2, 10, 2),
    Sketcher.Constraint("Equal", 7, 11),
    Sketcher.Constraint("DistanceX", 9, 2, 9, 1, Q("2 mm")),
    Sketcher.Constraint("DistanceX", 1, 1, 1, 2, Q("4.5 mm")),
    Sketcher.Constraint("DistanceX", 5, 1, 5, 2, Q("4.7 mm")),
    Sketcher.Constraint("DistanceY", 0, 2, 0, 1, Q("8.6 mm")),
    Sketcher.Constraint("DistanceY", 4, 2, 4, 1, Q("2.25 mm")),
    Sketcher.Constraint("DistanceY", 8, 1, 8, 2, Q("1.25 mm")),
    Sketcher.Constraint("DistanceY", 2, 2, 4, 2, Q("1.2 mm")),
    Sketcher.Constraint("DistanceX", -1, 1, 0, 2, Q("192.54895 mm")),
    Sketcher.Constraint("DistanceX", -1, 1, 4, 2, Q("201.258918 mm")),
    Sketcher.Constraint("DistanceY", -1, 1, 0, 2, Q("119.938695 mm")),
])
sketch3.setExpression("Constraints[26]", "Params.sketch3_width")
sketch3.setExpression("Constraints[27]", "Params.sketch3_width2")
sketch3.setExpression("Constraints[28]", "Params.sketch3_width3")
sketch3.setExpression("Constraints[29]", "Params.sketch3_height")
sketch3.setExpression("Constraints[30]", "Params.sketch3_height2")
pocket2 = body.newObject("PartDesign::Pocket", "Pocket001")
pocket2.Profile = sketch3
pocket2.Type = "ThroughAll"
pocket2.Reversed = True

# Sketch on XY plane
sketch4 = body.newObject("Sketcher::SketchObject", "Sketch003")
sketch4.AttachmentSupport = (doc.getObject("XY_Plane"), [""])
sketch4.MapMode = "FlatFace"
add_polygon(sketch4, [(108.541946, 58.08539), (108.541946, 51.58539), (120.541946, 51.58539), (120.541946, 58.08539)])  # lines 0-3
add_polygon(sketch4, [(125.541946, 94.866615), (125.541946, 82.866615), (132.041946, 82.866615), (132.041946, 94.866615)])  # lines 4-7
sketch4.addConstraint([
    Sketcher.Constraint("Vertical", 0),
    Sketcher.Constraint("Horizontal", 1),
    Sketcher.Constraint("Vertical", 2),
    Sketcher.Constraint("Horizontal", 3),
    Sketcher.Constraint("Vertical", 4),
    Sketcher.Constraint("Horizontal", 5),
    Sketcher.Constraint("Vertical", 6),
    Sketcher.Constraint("Horizontal", 7),
    Sketcher.Constraint("Equal", 7, 0),
    Sketcher.Constraint("Equal", 3, 4),
    Sketcher.Constraint("DistanceX", 1, 1, 1, 2, Q("12 mm")),
    Sketcher.Constraint("DistanceX", 5, 1, 5, 2, Q("6.5 mm")),
    Sketcher.Constraint("DistanceX", 2, 2, 4, 2, Q("5 mm")),
    Sketcher.Constraint("DistanceY", -1, 1, 0, 2, Q("51.58539 mm")),
    Sketcher.Constraint("DistanceX", -1, 1, 0, 2, Q("108.541946 mm")),
    Sketcher.Constraint("DistanceY", -1, 1, 4, 2, Q("82.866615 mm")),
])
sketch4.setExpression("Constraints[18]", "Params.sketch4_width")
sketch4.setExpression("Constraints[19]", "Params.sketch4_width2")
pocket3 = body.newObject("PartDesign::Pocket", "Pocket002")
pocket3.Profile = sketch4
pocket3.Type = "ThroughAll"
pocket3.Reversed = True

# Sketch on XY plane
sketch5 = body.newObject("Sketcher::SketchObject", "Sketch004")
sketch5.AttachmentSupport = (doc.getObject("XY_Plane"), [""])
sketch5.MapMode = "FlatFace"
add_polygon(sketch5, [(130.895179, 56.234535), (130.895179, 53.034535), (150.888713, 53.034535), (150.888713, 56.234535)])  # lines 0-3
add_polygon(sketch5, [(127.541946, 59.034535), (130.891946, 59.034535), (130.891946, 61.734535), (150.891946, 61.734535), (150.891946, 59.034535), (154.241946, 59.034535), (154.241946, 78.294535), (127.541946, 78.294535)])  # lines 4-11
sketch5.addConstraint([
    Sketcher.Constraint("Vertical", 0),
    Sketcher.Constraint("Horizontal", 1),
    Sketcher.Constraint("Vertical", 2),
    Sketcher.Constraint("Horizontal", 3),
    Sketcher.Constraint("Horizontal", 4),
    Sketcher.Constraint("Vertical", 5),
    Sketcher.Constraint("Horizontal", 6),
    Sketcher.Constraint("Vertical", 7),
    Sketcher.Constraint("Horizontal", 8),
    Sketcher.Constraint("Vertical", 9),
    Sketcher.Constraint("Horizontal", 10),
    Sketcher.Constraint("Vertical", 11),
    Sketcher.Constraint("Horizontal", 4, 2, 7, 2),
    Sketcher.Constraint("Equal", 4, 8),
    Sketcher.Constraint("DistanceX", 6, 1, 6, 2, Q("20 mm")),
    Sketcher.Constraint("DistanceX", 10, 2, 10, 1, Q("26.7 mm")),
    Sketcher.Constraint("DistanceY", 0, 2, 0, 1, Q("3.2 mm")),
    Sketcher.Constraint("DistanceY", 5, 1, 5, 2, Q("2.7 mm")),
    Sketcher.Constraint("DistanceY", 0, 2, 4, 2, Q("6 mm")),
    Sketcher.Constraint("DistanceY", 9, 1, 9, 2, Q("19.26 mm")),
    Sketcher.Constraint("DistanceX", 1, 1, 1, 2, Q("19.993534 mm")),
    Sketcher.Constraint("DistanceX", -1, 1, 0, 2, Q("130.895179 mm")),
    Sketcher.Constraint("DistanceY", -1, 1, 0, 2, Q("53.034535 mm")),
    Sketcher.Constraint("DistanceX", -1, 1, 4, 2, Q("130.891946 mm")),
])
sketch5.setExpression("Constraints[26]", "Params.sketch5_width")
sketch5.setExpression("Constraints[27]", "Params.sketch5_width2")
sketch5.setExpression("Constraints[28]", "Params.sketch5_height")
sketch5.setExpression("Constraints[29]", "Params.sketch5_height2")
sketch5.setExpression("Constraints[31]", "Params.sketch5_height3")
pocket4 = body.newObject("PartDesign::Pocket", "Pocket003")
pocket4.Profile = sketch5
pocket4.setExpression("Length", "Params.pocket4_length")
pocket4.Reversed = True

# Sketch on XY plane
sketch6 = body.newObject("Sketcher::SketchObject", "Sketch005")
sketch6.AttachmentSupport = (doc.getObject("XY_Plane"), [""])
sketch6.MapMode = "FlatFace"
add_polygon(sketch6, [(139.980407, 102.238695), (139.980407, 91.238695), (155.530407, 91.238695), (155.530407, 102.238695)])  # lines 0-3
sketch6.addConstraint([
    Sketcher.Constraint("Vertical", 0),
    Sketcher.Constraint("Horizontal", 1),
    Sketcher.Constraint("Vertical", 2),
    Sketcher.Constraint("Horizontal", 3),
    Sketcher.Constraint("DistanceY", 0, 2, 0, 1, Q("11 mm")),
    Sketcher.Constraint("DistanceX", 1, 1, 1, 2, Q("15.55 mm")),
    Sketcher.Constraint("DistanceX", -1, 1, 0, 2, Q("139.980407 mm")),
    Sketcher.Constraint("DistanceY", -1, 1, 0, 2, Q("91.238695 mm")),
])
sketch6.setExpression("Constraints[8]", "Params.sketch6_height")
sketch6.setExpression("Constraints[9]", "Params.sketch6_width")
pocket5 = body.newObject("PartDesign::Pocket", "Pocket004")
pocket5.Profile = sketch6
pocket5.Type = "ThroughAll"
pocket5.Reversed = True

# Sketch on XY plane
sketch7 = body.newObject("Sketcher::SketchObject", "Sketch006")
sketch7.AttachmentSupport = (doc.getObject("XY_Plane"), [""])
sketch7.MapMode = "FlatFace"
sketch7.addGeometry([
    Part.Circle(App.Vector(15.411864, 82.179064, 0), App.Vector(0, 0, 1), 1.6),  # 0
    Part.Circle(App.Vector(33.411864, 82.179064, 0), App.Vector(0, 0, 1), 1.6),  # 1
    Part.Circle(App.Vector(81.009211, 29.091461, 0), App.Vector(0, 0, 1), 1.6),  # 2
    Part.Circle(App.Vector(99.009211, 29.091461, 0), App.Vector(0, 0, 1), 1.6),  # 3
    Part.Circle(App.Vector(114.891946, 26.270068, 0), App.Vector(0, 0, 1), 1.6),  # 4
    Part.Circle(App.Vector(132.891946, 26.270068, 0), App.Vector(0, 0, 1), 1.6),  # 5
    Part.Circle(App.Vector(148.891946, 26.270068, 0), App.Vector(0, 0, 1), 1.6),  # 6
    Part.Circle(App.Vector(166.891946, 26.270068, 0), App.Vector(0, 0, 1), 1.6),  # 7
    Part.Circle(App.Vector(182.774681, 29.091461, 0), App.Vector(0, 0, 1), 1.6),  # 8
    Part.Circle(App.Vector(200.774681, 29.091461, 0), App.Vector(0, 0, 1), 1.6),  # 9
    Part.Circle(App.Vector(164.429013, 117.118176, 0), App.Vector(0, 0, 1), 1.6),  # 10
    Part.Circle(App.Vector(182.429013, 117.118176, 0), App.Vector(0, 0, 1), 1.6),  # 11
    Part.Circle(App.Vector(161.750224, 87.740054, 0), App.Vector(0, 0, 1), 1.6),  # 12
    Part.Circle(App.Vector(179.750224, 87.740054, 0), App.Vector(0, 0, 1), 1.6),  # 13
    Part.Circle(App.Vector(188.531819, 100.109216, 0), App.Vector(0, 0, 1), 1.6),  # 14
    Part.Circle(App.Vector(206.531819, 100.109216, 0), App.Vector(0, 0, 1), 1.6),  # 15
    Part.Circle(App.Vector(159.091946, 58.360068, 0), App.Vector(0, 0, 1), 1.6),  # 16
    Part.Circle(App.Vector(177.091946, 58.360068, 0), App.Vector(0, 0, 1), 1.6),  # 17
    Part.Circle(App.Vector(185.873541, 70.72923, 0), App.Vector(0, 0, 1), 1.6),  # 18
    Part.Circle(App.Vector(203.873541, 70.72923, 0), App.Vector(0, 0, 1), 1.6),  # 19
    Part.Circle(App.Vector(218.016937, 99.172306, 0), App.Vector(0, 0, 1), 1.6),  # 20
    Part.Circle(App.Vector(236.016937, 99.172306, 0), App.Vector(0, 0, 1), 1.6),  # 21
    Part.Circle(App.Vector(215.358659, 69.792321, 0), App.Vector(0, 0, 1), 1.6),  # 22
    Part.Circle(App.Vector(233.358659, 69.792321, 0), App.Vector(0, 0, 1), 1.6),  # 23
    Part.Circle(App.Vector(247.168886, 94.654136, 0), App.Vector(0, 0, 1), 1.6),  # 24
    Part.Circle(App.Vector(265.168886, 94.654136, 0), App.Vector(0, 0, 1), 1.6),  # 25
    Part.Circle(App.Vector(244.510608, 65.27415, 0), App.Vector(0, 0, 1), 1.6),  # 26
    Part.Circle(App.Vector(262.510608, 65.27415, 0), App.Vector(0, 0, 1), 1.6),  # 27
], False)
sketch7.addConstraint([
    Sketcher.Constraint("Equal", 0, 1),
    Sketcher.Constraint("Equal", 1, 2),
    Sketcher.Constraint("Equal", 2, 3),
    Sketcher.Constraint("Equal", 3, 4),
    Sketcher.Constraint("Equal", 4, 5),
    Sketcher.Constraint("Equal", 5, 6),
    Sketcher.Constraint("Equal", 6, 7),
    Sketcher.Constraint("Equal", 7, 8),
    Sketcher.Constraint("Equal", 8, 9),
    Sketcher.Constraint("Equal", 9, 10),
    Sketcher.Constraint("Equal", 10, 11),
    Sketcher.Constraint("Equal", 11, 12),
    Sketcher.Constraint("Equal", 12, 13),
    Sketcher.Constraint("Equal", 13, 14),
    Sketcher.Constraint("Equal", 14, 15),
    Sketcher.Constraint("Equal", 15, 16),
    Sketcher.Constraint("Equal", 16, 17),
    Sketcher.Constraint("Equal", 17, 18),
    Sketcher.Constraint("Equal", 18, 19),
    Sketcher.Constraint("Equal", 19, 20),
    Sketcher.Constraint("Equal", 20, 21),
    Sketcher.Constraint("Equal", 21, 22),
    Sketcher.Constraint("Equal", 22, 23),
    Sketcher.Constraint("Equal", 23, 24),
    Sketcher.Constraint("Equal", 24, 25),
    Sketcher.Constraint("Equal", 25, 26),
    Sketcher.Constraint("Equal", 26, 27),
    Sketcher.Constraint("Horizontal", 0, 3, 1, 3),
    Sketcher.Constraint("Horizontal", 2, 3, 3, 3),
    Sketcher.Constraint("Horizontal", 4, 3, 5, 3),
    Sketcher.Constraint("Horizontal", 5, 3, 6, 3),
    Sketcher.Constraint("Horizontal", 6, 3, 7, 3),
    Sketcher.Constraint("Horizontal", 3, 3, 8, 3),
    Sketcher.Constraint("Horizontal", 8, 3, 9, 3),
    Sketcher.Constraint("Horizontal", 10, 3, 11, 3),
    Sketcher.Constraint("Horizontal", 12, 3, 13, 3),
    Sketcher.Constraint("Horizontal", 14, 3, 15, 3),
    Sketcher.Constraint("Horizontal", 16, 3, 17, 3),
    Sketcher.Constraint("Horizontal", 18, 3, 19, 3),
    Sketcher.Constraint("Horizontal", 20, 3, 21, 3),
    Sketcher.Constraint("Horizontal", 22, 3, 23, 3),
    Sketcher.Constraint("Horizontal", 24, 3, 25, 3),
    Sketcher.Constraint("Horizontal", 26, 3, 27, 3),
    Sketcher.Constraint("Diameter", 0, Q("3.2 mm")),
    Sketcher.Constraint("DistanceX", 0, 3, 1, 3, Q("18 mm")),
    Sketcher.Constraint("DistanceX", 2, 3, 3, 3, Q("18 mm")),
    Sketcher.Constraint("DistanceX", 4, 3, 5, 3, Q("18 mm")),
    Sketcher.Constraint("DistanceX", 5, 3, 6, 3, Q("16 mm")),
    Sketcher.Constraint("DistanceX", 6, 3, 7, 3, Q("18 mm")),
    Sketcher.Constraint("DistanceX", 8, 3, 9, 3, Q("18 mm")),
    Sketcher.Constraint("DistanceX", 10, 3, 11, 3, Q("18 mm")),
    Sketcher.Constraint("DistanceX", 12, 3, 13, 3, Q("18 mm")),
    Sketcher.Constraint("DistanceX", 14, 3, 15, 3, Q("18 mm")),
    Sketcher.Constraint("DistanceX", 16, 3, 17, 3, Q("18 mm")),
    Sketcher.Constraint("DistanceX", 18, 3, 19, 3, Q("18 mm")),
    Sketcher.Constraint("DistanceX", 20, 3, 21, 3, Q("18 mm")),
    Sketcher.Constraint("DistanceX", 22, 3, 23, 3, Q("18 mm")),
    Sketcher.Constraint("DistanceX", 24, 3, 25, 3, Q("18 mm")),
    Sketcher.Constraint("DistanceX", 26, 3, 27, 3, Q("18 mm")),
    Sketcher.Constraint("DistanceX", 16, 3, 7, 3, Q("7.8 mm")),
    Sketcher.Constraint("DistanceY", 7, 3, 16, 3, Q("32.09 mm")),
    Sketcher.Constraint("DistanceX", -1, 1, 2, 3, Q("81.009211 mm")),
    Sketcher.Constraint("DistanceY", -1, 1, 2, 3, Q("29.091461 mm")),
    Sketcher.Constraint("DistanceX", -1, 1, 8, 3, Q("182.774681 mm")),
    Sketcher.Constraint("DistanceX", -1, 1, 14, 3, Q("188.531819 mm")),
    Sketcher.Constraint("DistanceX", -1, 1, 18, 3, Q("185.873541 mm")),
    Sketcher.Constraint("DistanceY", -1, 1, 18, 3, Q("70.72923 mm")),
    Sketcher.Constraint("DistanceX", -1, 1, 22, 3, Q("215.358659 mm")),
    Sketcher.Constraint("DistanceY", -1, 1, 22, 3, Q("69.792321 mm")),
    Sketcher.Constraint("DistanceX", -1, 1, 26, 3, Q("244.510608 mm")),
    Sketcher.Constraint("DistanceY", -1, 1, 26, 3, Q("65.27415 mm")),
    Sketcher.Constraint("DistanceX", 1, 3, 4, 3, Q("81.480082 mm")),
    Sketcher.Constraint("DistanceX", 10, 3, 8, 3, Q("18.345668 mm")),
    Sketcher.Constraint("DistanceY", 7, 3, 10, 3, Q("90.848108 mm")),
    Sketcher.Constraint("DistanceX", 12, 3, 10, 3, Q("2.678789 mm")),
    Sketcher.Constraint("DistanceX", 12, 3, 7, 3, Q("5.141722 mm")),
    Sketcher.Constraint("DistanceY", 14, 3, 11, 3, Q("17.00896 mm")),
    Sketcher.Constraint("DistanceX", 15, 3, 20, 3, Q("11.485118 mm")),
    Sketcher.Constraint("DistanceY", 20, 3, 15, 3, Q("0.93691 mm")),
    Sketcher.Constraint("DistanceX", 21, 3, 24, 3, Q("11.151949 mm")),
    Sketcher.Constraint("DistanceY", 24, 3, 21, 3, Q("4.51817 mm")),
    Sketcher.Constraint("DistanceY", -1, 1, 0, 3, Q("82.179064 mm")),
    Sketcher.Constraint("DistanceY", -1, 1, 4, 3, Q("26.270068 mm")),
    Sketcher.Constraint("DistanceY", -1, 1, 12, 3, Q("87.740054 mm")),
])
sketch7.setExpression("Constraints[43]", "Params.sketch7_diameter")
pocket6 = body.newObject("PartDesign::Pocket", "Pocket005")
pocket6.Profile = sketch7
pocket6.Type = "ThroughAll"
pocket6.Reversed = True

doc.recompute()
